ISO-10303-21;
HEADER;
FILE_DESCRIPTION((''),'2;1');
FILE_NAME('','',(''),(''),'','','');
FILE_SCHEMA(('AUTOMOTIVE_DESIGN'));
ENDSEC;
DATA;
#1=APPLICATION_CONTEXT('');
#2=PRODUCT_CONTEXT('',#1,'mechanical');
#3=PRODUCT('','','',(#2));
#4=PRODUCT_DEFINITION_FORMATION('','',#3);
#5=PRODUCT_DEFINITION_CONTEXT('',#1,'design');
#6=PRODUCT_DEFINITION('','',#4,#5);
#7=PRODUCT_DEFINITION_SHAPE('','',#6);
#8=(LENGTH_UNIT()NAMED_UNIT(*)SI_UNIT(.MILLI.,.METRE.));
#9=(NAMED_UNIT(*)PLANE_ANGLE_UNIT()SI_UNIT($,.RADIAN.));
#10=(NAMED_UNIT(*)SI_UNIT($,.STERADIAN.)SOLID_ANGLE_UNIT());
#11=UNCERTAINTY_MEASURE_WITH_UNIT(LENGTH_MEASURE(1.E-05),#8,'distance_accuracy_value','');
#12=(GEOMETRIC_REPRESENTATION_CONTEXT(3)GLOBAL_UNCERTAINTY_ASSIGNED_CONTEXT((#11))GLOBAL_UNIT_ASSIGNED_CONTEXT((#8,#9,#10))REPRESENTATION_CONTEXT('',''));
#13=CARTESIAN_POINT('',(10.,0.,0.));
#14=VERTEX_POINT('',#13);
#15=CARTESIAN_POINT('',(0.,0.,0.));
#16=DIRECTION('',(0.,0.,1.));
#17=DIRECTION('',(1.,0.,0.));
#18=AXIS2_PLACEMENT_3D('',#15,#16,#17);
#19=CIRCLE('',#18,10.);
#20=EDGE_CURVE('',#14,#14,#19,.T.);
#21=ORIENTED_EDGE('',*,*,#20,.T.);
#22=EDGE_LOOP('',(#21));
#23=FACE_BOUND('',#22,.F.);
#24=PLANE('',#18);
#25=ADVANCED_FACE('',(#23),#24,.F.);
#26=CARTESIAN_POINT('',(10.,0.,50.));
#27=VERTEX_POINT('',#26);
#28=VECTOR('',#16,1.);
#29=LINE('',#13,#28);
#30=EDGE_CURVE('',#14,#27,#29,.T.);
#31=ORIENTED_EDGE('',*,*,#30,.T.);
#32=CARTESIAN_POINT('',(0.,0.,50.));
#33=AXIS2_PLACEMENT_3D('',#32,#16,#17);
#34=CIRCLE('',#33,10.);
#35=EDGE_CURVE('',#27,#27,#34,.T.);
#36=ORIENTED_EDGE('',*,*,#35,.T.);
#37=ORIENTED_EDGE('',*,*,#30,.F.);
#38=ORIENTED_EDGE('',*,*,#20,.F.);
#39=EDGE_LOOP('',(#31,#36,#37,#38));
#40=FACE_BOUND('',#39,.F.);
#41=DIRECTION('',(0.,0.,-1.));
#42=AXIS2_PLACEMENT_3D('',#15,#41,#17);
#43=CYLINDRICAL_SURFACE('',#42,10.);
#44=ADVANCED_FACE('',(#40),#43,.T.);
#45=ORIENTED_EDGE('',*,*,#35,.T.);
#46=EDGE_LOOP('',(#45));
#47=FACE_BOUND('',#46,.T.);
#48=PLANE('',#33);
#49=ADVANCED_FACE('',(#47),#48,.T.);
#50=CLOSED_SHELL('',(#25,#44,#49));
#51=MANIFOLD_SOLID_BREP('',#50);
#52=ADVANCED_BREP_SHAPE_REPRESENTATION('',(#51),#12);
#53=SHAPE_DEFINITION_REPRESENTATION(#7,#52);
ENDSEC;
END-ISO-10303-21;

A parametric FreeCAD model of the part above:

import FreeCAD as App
import Part
import Sketcher

V = App.Vector
Q = App.Units.Quantity

doc = App.newDocument("Part")
body = doc.addObject("PartDesign::Body", "Body")

sketch1 = body.newObject("Sketcher::SketchObject", "Sketch")
sketch1.AttachmentSupport = (doc.getObject("XY_Plane"), [""])
sketch1.MapMode = "FlatFace"
sketch1.addGeometry(Part.Circle(V(0, 0, 0), V(0, 0, 1), 10), False)
sketch1.addConstraint([
    Sketcher.Constraint("Coincident", 0, 3, -1, 1),
    Sketcher.Constraint("Diameter", 0, Q("20 mm")),
])
pad1 = body.newObject("PartDesign::Pad", "Pad")
pad1.Profile = sketch1
pad1.Length = 50

doc.recompute()
